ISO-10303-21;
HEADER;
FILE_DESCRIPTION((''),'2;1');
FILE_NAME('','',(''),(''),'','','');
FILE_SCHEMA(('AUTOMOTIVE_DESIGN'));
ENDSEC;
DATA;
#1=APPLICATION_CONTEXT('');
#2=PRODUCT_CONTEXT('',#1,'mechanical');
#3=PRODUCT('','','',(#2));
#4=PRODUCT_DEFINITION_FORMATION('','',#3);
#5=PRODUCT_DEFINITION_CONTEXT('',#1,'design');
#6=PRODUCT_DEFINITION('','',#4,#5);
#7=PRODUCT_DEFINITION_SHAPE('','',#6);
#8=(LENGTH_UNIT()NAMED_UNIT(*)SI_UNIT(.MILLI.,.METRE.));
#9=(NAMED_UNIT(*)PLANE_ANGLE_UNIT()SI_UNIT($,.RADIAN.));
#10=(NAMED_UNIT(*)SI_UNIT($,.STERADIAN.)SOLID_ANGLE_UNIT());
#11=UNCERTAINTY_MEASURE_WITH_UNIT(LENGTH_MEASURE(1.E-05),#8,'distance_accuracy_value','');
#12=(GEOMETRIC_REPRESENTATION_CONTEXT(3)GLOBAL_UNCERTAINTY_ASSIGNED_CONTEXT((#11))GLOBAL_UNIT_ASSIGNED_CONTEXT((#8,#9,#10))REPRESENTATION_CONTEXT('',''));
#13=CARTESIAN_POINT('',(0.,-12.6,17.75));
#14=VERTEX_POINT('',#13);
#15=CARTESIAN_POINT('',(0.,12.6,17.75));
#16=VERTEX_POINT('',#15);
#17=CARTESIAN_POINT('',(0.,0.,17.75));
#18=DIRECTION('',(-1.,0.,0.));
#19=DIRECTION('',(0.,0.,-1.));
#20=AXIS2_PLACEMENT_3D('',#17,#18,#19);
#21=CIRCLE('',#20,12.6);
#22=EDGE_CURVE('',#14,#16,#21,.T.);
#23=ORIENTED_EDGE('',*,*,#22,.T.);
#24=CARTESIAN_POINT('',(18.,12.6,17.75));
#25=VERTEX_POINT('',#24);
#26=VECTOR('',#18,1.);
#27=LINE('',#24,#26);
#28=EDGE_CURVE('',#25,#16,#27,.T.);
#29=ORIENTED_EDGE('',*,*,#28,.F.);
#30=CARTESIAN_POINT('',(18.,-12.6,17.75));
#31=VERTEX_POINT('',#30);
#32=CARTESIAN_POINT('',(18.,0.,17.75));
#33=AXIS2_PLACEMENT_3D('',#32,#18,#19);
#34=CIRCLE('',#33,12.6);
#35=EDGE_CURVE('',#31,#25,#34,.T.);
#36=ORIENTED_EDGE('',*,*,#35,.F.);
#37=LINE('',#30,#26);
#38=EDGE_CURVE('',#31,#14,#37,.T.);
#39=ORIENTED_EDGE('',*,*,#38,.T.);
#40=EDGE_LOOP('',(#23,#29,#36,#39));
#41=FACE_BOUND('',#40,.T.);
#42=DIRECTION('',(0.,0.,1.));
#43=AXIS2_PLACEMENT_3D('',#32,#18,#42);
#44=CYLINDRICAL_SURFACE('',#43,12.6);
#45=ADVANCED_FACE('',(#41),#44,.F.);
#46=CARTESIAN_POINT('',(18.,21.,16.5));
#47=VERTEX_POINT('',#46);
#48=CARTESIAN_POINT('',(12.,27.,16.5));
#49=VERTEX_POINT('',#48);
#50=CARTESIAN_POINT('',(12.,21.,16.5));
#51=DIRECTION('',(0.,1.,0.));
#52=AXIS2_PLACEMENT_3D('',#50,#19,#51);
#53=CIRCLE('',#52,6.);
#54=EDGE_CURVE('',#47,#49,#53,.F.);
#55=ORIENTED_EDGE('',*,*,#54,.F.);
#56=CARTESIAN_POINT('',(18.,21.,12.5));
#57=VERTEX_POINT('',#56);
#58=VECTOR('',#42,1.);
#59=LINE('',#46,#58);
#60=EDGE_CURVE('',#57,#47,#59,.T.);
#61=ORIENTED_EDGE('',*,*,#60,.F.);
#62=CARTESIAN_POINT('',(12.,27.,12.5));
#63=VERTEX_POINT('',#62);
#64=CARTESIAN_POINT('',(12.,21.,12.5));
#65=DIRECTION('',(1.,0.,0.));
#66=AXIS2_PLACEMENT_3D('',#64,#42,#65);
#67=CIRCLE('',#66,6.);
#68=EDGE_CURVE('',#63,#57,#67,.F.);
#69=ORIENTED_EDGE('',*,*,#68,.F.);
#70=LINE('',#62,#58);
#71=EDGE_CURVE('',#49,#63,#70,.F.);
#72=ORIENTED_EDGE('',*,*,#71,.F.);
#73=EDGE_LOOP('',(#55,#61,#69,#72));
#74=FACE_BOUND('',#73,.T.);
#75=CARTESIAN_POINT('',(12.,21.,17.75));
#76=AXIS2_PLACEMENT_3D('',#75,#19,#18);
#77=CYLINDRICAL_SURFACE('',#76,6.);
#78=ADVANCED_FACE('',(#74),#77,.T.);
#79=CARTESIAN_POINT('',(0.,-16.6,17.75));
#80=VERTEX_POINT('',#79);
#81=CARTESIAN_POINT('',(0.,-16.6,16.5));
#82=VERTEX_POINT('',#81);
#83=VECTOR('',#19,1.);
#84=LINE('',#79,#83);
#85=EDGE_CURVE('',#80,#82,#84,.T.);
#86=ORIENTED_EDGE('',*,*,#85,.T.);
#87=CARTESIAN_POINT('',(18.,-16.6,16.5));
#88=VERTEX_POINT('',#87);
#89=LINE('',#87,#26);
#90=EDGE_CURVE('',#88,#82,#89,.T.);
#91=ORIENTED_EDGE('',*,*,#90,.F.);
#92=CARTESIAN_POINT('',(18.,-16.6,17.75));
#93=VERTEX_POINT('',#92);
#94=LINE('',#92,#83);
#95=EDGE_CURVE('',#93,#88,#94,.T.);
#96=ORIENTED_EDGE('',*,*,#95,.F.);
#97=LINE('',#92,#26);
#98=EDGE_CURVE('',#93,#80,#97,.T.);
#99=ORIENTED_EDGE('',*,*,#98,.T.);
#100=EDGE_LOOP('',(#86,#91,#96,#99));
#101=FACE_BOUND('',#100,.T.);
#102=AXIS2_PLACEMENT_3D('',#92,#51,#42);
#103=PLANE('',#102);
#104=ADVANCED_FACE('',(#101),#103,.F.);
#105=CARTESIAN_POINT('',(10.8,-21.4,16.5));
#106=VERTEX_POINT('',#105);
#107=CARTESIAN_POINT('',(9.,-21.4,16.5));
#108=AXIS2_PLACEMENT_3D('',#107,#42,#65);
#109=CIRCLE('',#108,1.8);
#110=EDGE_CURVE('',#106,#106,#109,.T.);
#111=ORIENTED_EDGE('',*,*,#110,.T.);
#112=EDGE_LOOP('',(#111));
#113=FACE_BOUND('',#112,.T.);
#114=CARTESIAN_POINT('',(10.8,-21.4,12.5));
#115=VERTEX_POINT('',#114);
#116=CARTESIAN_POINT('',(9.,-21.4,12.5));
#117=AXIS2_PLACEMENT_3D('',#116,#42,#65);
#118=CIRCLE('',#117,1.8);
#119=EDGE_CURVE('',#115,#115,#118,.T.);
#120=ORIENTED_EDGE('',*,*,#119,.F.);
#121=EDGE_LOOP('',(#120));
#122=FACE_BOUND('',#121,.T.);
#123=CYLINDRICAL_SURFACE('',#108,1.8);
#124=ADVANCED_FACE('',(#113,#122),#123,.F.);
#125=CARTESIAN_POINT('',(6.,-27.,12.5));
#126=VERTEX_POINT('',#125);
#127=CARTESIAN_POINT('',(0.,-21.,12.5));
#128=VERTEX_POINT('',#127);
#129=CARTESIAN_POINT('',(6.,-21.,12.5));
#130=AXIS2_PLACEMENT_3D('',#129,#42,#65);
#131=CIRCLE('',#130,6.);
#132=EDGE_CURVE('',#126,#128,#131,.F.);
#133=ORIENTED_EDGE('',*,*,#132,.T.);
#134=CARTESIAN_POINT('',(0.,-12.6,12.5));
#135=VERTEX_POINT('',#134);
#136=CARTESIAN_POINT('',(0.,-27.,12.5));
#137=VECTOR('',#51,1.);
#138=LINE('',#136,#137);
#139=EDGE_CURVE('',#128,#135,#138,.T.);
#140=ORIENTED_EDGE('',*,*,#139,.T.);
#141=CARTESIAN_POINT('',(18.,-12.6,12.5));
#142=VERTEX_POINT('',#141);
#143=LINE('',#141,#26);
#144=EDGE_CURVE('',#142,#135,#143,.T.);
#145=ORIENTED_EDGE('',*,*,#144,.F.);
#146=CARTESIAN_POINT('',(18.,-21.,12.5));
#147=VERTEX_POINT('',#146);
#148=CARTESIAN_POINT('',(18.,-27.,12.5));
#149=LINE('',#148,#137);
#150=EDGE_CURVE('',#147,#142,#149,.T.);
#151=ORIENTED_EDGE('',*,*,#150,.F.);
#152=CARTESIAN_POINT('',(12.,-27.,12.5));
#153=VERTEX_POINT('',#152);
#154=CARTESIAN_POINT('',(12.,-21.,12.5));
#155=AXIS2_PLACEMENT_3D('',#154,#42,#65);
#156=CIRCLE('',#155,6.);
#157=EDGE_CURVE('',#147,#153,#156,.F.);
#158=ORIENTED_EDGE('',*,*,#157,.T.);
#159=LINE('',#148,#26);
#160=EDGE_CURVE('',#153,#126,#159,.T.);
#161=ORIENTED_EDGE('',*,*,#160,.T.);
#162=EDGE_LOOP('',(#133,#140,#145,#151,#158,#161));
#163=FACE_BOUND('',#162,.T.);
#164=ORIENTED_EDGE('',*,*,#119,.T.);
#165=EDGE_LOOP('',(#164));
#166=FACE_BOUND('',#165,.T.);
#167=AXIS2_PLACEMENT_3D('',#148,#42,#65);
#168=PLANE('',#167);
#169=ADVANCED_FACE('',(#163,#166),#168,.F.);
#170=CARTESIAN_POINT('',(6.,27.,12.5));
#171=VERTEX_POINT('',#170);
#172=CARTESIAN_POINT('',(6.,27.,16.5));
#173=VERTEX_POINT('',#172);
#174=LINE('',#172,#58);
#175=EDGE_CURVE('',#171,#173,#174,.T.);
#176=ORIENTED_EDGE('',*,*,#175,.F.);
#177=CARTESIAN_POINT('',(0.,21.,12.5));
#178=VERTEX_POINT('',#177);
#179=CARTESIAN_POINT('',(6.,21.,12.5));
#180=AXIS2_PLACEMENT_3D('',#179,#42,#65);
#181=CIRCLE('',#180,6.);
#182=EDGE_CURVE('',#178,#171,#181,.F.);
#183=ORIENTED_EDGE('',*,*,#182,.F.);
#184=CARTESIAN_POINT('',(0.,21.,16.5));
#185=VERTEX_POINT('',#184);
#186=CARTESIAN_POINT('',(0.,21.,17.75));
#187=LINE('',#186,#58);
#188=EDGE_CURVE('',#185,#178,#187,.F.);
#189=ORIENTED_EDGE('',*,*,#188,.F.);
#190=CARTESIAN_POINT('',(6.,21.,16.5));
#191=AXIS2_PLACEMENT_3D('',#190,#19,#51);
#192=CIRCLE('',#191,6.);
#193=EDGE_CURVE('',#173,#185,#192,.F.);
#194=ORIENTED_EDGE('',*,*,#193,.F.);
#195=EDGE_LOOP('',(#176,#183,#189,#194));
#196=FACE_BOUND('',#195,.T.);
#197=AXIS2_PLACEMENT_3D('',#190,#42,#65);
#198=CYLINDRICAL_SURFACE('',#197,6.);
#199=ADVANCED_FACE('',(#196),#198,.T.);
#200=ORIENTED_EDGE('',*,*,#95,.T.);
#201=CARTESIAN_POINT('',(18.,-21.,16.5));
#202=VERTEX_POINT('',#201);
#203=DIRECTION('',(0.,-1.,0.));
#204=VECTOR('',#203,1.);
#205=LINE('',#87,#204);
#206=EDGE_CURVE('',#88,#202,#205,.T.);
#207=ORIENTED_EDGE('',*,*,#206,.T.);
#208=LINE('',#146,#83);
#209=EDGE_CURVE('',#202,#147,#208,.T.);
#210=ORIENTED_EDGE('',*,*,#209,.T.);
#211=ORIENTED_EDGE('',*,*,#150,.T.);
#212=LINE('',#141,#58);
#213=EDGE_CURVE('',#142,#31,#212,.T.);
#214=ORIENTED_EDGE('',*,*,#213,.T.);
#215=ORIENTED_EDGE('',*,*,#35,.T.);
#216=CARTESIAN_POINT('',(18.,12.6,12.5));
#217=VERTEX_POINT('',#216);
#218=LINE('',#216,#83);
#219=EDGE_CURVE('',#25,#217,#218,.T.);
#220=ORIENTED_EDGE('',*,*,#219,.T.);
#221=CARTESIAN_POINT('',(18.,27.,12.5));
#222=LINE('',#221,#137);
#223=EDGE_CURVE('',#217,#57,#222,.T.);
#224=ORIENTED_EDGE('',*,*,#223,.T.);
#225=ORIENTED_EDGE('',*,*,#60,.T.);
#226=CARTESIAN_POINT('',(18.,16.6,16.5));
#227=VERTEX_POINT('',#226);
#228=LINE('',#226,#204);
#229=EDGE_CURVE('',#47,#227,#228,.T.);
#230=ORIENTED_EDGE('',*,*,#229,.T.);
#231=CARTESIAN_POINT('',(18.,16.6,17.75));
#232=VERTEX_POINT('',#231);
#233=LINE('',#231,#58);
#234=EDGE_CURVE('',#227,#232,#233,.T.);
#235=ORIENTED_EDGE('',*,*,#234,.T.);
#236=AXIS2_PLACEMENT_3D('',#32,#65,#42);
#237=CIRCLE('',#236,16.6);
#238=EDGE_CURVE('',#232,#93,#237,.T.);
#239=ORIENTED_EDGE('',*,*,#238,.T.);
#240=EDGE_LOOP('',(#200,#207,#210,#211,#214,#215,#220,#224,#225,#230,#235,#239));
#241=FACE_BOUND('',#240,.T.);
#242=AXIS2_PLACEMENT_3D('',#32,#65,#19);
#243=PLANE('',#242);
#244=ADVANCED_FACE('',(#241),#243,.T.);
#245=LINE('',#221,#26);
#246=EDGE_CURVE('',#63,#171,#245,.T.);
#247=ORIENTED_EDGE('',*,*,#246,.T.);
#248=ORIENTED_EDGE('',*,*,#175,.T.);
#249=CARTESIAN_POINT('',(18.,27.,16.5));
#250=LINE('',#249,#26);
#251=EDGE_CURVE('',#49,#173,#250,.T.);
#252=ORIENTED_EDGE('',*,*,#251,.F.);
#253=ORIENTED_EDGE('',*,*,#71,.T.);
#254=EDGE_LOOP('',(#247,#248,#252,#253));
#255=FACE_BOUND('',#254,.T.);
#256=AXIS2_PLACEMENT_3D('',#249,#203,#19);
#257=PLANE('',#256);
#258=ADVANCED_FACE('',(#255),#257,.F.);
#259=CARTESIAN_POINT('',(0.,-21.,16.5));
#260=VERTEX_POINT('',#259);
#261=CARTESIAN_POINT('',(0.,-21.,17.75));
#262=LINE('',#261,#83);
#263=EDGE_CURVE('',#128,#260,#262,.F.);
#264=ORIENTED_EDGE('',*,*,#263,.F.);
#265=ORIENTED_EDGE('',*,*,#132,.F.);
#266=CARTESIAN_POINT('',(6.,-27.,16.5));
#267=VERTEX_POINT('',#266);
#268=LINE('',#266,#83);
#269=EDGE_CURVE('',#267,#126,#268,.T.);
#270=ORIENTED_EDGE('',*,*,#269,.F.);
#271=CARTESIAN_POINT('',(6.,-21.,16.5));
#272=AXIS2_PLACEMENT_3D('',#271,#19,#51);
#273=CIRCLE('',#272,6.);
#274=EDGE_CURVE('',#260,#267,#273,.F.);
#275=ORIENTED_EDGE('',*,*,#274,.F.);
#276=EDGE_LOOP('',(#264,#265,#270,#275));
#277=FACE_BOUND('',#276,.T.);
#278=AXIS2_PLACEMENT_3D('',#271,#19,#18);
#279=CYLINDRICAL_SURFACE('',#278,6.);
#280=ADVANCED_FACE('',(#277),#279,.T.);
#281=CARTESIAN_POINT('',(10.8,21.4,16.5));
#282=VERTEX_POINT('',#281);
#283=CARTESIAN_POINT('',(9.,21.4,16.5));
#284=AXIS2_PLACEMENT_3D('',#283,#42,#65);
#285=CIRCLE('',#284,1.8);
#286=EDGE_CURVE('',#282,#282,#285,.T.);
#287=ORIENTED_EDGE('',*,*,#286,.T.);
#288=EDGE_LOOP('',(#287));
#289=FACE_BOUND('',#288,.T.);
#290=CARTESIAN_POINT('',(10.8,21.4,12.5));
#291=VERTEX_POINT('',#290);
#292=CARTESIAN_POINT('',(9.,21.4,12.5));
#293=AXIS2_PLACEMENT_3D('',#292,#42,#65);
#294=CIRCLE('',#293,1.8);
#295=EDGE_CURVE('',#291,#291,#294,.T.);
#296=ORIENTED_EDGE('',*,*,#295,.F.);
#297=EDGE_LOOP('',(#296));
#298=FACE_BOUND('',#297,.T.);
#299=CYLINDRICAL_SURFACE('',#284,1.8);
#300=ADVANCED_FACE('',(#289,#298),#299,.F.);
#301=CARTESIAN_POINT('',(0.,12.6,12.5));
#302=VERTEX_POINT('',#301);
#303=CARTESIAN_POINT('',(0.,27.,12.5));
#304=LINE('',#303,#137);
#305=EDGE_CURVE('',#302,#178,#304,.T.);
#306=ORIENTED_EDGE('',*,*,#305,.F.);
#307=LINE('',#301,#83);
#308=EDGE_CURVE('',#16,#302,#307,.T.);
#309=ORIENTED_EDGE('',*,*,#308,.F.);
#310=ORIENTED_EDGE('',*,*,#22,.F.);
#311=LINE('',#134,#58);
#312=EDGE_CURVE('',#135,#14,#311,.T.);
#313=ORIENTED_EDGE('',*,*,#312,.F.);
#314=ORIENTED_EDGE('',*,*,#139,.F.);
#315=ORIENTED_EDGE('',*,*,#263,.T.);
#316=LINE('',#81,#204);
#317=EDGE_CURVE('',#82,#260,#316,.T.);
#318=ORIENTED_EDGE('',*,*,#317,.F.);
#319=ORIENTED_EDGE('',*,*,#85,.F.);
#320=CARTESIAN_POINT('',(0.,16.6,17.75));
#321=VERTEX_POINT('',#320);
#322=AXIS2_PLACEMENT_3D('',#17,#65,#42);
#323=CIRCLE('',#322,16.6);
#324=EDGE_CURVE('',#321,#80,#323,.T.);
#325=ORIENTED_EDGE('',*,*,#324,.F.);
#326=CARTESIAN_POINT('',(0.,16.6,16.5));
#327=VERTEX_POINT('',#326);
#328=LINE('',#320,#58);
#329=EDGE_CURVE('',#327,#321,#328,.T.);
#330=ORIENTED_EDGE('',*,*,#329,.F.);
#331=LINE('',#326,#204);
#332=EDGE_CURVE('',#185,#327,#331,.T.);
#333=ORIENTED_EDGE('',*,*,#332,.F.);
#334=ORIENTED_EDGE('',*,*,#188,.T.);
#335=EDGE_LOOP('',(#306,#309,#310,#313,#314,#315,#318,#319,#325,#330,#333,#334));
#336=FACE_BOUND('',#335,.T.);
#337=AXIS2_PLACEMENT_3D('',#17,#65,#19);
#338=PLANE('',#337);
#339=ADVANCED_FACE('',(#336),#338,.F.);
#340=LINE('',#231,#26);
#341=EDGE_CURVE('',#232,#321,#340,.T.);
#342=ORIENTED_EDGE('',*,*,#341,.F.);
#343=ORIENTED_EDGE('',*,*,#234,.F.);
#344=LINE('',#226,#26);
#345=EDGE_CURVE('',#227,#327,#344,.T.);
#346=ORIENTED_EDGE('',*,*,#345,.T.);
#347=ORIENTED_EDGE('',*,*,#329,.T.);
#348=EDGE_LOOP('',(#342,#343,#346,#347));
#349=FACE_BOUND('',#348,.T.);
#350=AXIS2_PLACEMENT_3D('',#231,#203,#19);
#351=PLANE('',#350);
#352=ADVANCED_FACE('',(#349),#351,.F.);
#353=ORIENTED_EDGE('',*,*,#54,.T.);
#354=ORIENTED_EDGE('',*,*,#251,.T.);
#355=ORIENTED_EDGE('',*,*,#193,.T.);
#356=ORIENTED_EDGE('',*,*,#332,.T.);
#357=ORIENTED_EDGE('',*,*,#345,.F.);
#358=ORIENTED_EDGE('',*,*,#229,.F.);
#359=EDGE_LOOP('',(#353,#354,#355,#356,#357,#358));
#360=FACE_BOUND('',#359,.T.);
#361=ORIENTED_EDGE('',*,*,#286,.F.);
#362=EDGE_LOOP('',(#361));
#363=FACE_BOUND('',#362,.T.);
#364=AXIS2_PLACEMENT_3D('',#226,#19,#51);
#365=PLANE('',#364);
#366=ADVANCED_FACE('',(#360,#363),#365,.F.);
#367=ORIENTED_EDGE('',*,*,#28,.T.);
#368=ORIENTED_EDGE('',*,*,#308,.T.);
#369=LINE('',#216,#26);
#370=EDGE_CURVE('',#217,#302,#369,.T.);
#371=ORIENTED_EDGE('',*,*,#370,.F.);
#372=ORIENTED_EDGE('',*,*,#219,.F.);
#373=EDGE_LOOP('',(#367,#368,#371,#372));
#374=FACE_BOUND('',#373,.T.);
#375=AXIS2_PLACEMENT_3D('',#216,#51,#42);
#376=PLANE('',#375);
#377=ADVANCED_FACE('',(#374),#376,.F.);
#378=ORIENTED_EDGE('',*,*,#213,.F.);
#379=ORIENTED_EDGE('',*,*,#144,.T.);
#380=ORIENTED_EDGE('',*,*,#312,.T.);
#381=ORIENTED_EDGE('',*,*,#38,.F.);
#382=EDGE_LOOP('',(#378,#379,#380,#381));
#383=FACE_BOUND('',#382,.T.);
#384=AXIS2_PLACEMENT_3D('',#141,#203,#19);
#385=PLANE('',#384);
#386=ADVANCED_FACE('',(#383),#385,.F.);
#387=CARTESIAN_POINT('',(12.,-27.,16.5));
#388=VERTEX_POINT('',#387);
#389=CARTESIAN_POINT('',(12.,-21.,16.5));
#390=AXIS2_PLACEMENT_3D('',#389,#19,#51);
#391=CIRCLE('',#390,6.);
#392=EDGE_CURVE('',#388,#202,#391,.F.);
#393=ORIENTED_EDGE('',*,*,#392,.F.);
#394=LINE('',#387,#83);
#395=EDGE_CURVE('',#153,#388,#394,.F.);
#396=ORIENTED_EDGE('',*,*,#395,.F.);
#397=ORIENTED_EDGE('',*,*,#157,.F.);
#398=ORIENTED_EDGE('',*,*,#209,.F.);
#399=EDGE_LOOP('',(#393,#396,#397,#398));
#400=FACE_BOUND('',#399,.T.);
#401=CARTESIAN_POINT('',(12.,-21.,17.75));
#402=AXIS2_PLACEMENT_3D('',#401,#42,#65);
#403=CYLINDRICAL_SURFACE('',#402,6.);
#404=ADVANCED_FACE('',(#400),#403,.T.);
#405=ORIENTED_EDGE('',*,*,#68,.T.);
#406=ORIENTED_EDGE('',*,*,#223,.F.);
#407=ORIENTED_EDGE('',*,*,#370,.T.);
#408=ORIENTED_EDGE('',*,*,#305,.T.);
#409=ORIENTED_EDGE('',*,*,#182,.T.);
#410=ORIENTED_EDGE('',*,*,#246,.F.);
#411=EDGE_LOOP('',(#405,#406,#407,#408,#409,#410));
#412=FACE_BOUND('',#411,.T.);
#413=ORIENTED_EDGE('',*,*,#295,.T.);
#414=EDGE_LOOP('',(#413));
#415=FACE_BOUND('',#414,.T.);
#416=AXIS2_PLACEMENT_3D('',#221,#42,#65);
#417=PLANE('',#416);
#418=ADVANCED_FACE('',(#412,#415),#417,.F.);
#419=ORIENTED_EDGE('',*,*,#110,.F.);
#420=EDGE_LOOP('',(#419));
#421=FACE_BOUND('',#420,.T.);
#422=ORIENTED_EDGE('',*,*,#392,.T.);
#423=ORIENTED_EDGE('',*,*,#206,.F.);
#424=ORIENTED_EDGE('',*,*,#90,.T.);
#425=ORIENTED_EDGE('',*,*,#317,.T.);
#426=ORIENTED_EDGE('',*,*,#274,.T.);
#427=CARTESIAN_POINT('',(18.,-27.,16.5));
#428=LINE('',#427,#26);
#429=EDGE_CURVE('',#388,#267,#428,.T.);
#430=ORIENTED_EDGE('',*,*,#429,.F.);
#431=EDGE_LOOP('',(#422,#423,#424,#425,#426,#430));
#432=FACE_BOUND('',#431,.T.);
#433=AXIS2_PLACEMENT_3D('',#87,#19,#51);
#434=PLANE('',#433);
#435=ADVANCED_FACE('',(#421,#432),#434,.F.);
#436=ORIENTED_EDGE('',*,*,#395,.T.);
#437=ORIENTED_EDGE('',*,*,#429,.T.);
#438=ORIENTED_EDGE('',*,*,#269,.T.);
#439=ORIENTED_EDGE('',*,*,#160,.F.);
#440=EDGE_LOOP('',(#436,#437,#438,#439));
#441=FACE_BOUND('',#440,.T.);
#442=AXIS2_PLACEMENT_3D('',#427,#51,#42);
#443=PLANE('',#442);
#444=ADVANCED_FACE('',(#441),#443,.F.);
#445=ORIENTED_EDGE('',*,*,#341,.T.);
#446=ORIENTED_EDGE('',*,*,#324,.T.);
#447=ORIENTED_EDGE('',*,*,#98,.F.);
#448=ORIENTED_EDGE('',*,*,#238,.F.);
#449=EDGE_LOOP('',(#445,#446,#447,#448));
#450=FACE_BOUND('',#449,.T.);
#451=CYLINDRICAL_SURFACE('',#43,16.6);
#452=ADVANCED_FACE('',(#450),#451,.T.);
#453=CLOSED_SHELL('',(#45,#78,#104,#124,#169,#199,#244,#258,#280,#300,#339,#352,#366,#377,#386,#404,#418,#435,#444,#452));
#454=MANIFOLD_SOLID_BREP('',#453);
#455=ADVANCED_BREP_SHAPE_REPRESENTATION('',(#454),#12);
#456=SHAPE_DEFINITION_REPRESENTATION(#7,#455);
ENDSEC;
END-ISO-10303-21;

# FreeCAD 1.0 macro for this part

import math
import FreeCAD as App
import Part
import Sketcher
from FreeCAD import Vector


def edges_at(feature, points):
    """Names of the edges that pass closest to the given points."""
    edges = feature.Shape.Edges
    near = lambda p: min(range(len(edges)), key=lambda i: edges[i].distToShape(Part.Vertex(*p))[0])
    return sorted({f"Edge{near(p) + 1}" for p in points})

doc = App.newDocument("Part")
body = doc.addObject("PartDesign::Body", "Body")

# Sketch on YZ plane
sketch1 = body.newObject("Sketcher::SketchObject", "Sketch")
sketch1.AttachmentSupport = (doc.getObject("YZ_Plane"), [""])
sketch1.MapMode = "FlatFace"
sketch1.addGeometry([
    Part.LineSegment(Vector(-16.6, 17.8, 0), Vector(-16.6, 16.5, 0)),  # 0
    Part.LineSegment(Vector(-16.6, 16.5, 0), Vector(-27, 16.5, 0)),  # 1
    Part.LineSegment(Vector(-27, 16.5, 0), Vector(-27, 12.5, 0)),  # 2
    Part.LineSegment(Vector(-27, 12.5, 0), Vector(-12.6, 12.5, 0)),  # 3
    Part.LineSegment(Vector(-12.6, 12.5, 0), Vector(-12.6, 17.8, 0)),  # 4
    Part.ArcOfCircle(Part.Circle(Vector(0, 17.8, 0), Vector(0, 0, 1), 12.6), math.radians(0), math.radians(180)),  # 5
    Part.LineSegment(Vector(12.6, 17.8, 0), Vector(12.6, 12.5, 0)),  # 6
    Part.LineSegment(Vector(12.6, 12.5, 0), Vector(27, 12.5, 0)),  # 7
    Part.LineSegment(Vector(27, 12.5, 0), Vector(27, 16.5, 0)),  # 8
    Part.LineSegment(Vector(27, 16.5, 0), Vector(16.6, 16.5, 0)),  # 9
    Part.LineSegment(Vector(16.6, 16.5, 0), Vector(16.6, 17.8, 0)),  # 10
    Part.ArcOfCircle(Part.Circle(Vector(0, 17.8, 0), Vector(0, 0, 1), 16.6), math.radians(0), math.radians(180)),  # 11
], False)
sketch1.addConstraint([
    Sketcher.Constraint("Coincident", 0, 2, 1, 1),
    Sketcher.Constraint("Coincident", 1, 2, 2, 1),
    Sketcher.Constraint("Coincident", 2, 2, 3, 1),
    Sketcher.Constraint("Coincident", 3, 2, 4, 1),
    Sketcher.Constraint("Tangent", 4, 2, 5, 2),
    Sketcher.Constraint("Tangent", 5, 1, 6, 1),
    Sketcher.Constraint("Coincident", 6, 2, 7, 1),
    Sketcher.Constraint("Coincident", 7, 2, 8, 1),
    Sketcher.Constraint("Coincident", 8, 2, 9, 1),
    Sketcher.Constraint("Coincident", 9, 2, 10, 1),
    Sketcher.Constraint("Tangent", 10, 2, 11, 1),
    Sketcher.Constraint("Tangent", 11, 2, 0, 1),
    Sketcher.Constraint("Vertical", 0),
    Sketcher.Constraint("Horizontal", 1),
    Sketcher.Constraint("Vertical", 2),
    Sketcher.Constraint("Horizontal", 3),
    Sketcher.Constraint("Vertical", 4),
    Sketcher.Constraint("Vertical", 6),
    Sketcher.Constraint("Horizontal", 7),
    Sketcher.Constraint("Vertical", 8),
    Sketcher.Constraint("Horizontal", 9),
    Sketcher.Constraint("Vertical", 10),
    Sketcher.Constraint("Coincident", 11, 3, 5, 3),
    Sketcher.Constraint("Symmetric", 3, 2, 6, 2, -2),
    Sketcher.Constraint("Symmetric", 1, 2, 8, 2, -2),
    Sketcher.Constraint("Radius", 5, 12.6),
    Sketcher.Constraint("Radius", 11, 16.6),
    Sketcher.Constraint("DistanceY", 2, 2, 2, 1, 4.0),
    Sketcher.Constraint("DistanceX", 1, 2, 1, 1, 10.4),
    Sketcher.Constraint("DistanceY", 0, 2, 0, 1, 1.25),
    Sketcher.Constraint("DistanceY", -1, 1, 0, 2, 16.5),
])
pad1 = body.newObject("PartDesign::Pad", "Pad")
pad1.Profile = sketch1
pad1.Length = 18

# Sketch on XY plane
sketch2 = body.newObject("Sketcher::SketchObject", "Sketch001")
sketch2.AttachmentSupport = (doc.getObject("XY_Plane"), [""])
sketch2.MapMode = "FlatFace"
sketch2.AttachmentOffset = App.Placement(Vector(0, 0, 16.5), App.Rotation())
sketch2.addGeometry(Part.Circle(Vector(9, -21.4, 0), Vector(0, 0, 1), 1.8), False)
sketch2.addConstraint([
    Sketcher.Constraint("Diameter", 0, 3.6),
    Sketcher.Constraint("DistanceX", -1, 1, 0, 3, 9.0),
    Sketcher.Constraint("DistanceY", 0, 3, -1, 1, 21.4),
])
doc.recompute()
hole = body.newObject("PartDesign::Hole", "Hole")
hole.Profile = sketch2
hole.ThreadType = "None"
hole.Diameter = 3.6
hole.DepthType = "ThroughAll"
doc.recompute()

mirrored = body.newObject("PartDesign::Mirrored", "Mirrored")
mirrored.Originals = [hole]
mirrored.MirrorPlane = (doc.getObject("XZ_Plane"), [""])
body.Tip = mirrored
doc.recompute()

fillet = body.newObject("PartDesign::Fillet", "Fillet")
fillet.Base = (mirrored, edges_at(mirrored, [
    (0, 27, 14.5),
    (0, -27, 14.5),
    (18, -27, 14.5),
    (18, 27, 14.5),
]))
fillet.Radius = 6

doc.recompute()
